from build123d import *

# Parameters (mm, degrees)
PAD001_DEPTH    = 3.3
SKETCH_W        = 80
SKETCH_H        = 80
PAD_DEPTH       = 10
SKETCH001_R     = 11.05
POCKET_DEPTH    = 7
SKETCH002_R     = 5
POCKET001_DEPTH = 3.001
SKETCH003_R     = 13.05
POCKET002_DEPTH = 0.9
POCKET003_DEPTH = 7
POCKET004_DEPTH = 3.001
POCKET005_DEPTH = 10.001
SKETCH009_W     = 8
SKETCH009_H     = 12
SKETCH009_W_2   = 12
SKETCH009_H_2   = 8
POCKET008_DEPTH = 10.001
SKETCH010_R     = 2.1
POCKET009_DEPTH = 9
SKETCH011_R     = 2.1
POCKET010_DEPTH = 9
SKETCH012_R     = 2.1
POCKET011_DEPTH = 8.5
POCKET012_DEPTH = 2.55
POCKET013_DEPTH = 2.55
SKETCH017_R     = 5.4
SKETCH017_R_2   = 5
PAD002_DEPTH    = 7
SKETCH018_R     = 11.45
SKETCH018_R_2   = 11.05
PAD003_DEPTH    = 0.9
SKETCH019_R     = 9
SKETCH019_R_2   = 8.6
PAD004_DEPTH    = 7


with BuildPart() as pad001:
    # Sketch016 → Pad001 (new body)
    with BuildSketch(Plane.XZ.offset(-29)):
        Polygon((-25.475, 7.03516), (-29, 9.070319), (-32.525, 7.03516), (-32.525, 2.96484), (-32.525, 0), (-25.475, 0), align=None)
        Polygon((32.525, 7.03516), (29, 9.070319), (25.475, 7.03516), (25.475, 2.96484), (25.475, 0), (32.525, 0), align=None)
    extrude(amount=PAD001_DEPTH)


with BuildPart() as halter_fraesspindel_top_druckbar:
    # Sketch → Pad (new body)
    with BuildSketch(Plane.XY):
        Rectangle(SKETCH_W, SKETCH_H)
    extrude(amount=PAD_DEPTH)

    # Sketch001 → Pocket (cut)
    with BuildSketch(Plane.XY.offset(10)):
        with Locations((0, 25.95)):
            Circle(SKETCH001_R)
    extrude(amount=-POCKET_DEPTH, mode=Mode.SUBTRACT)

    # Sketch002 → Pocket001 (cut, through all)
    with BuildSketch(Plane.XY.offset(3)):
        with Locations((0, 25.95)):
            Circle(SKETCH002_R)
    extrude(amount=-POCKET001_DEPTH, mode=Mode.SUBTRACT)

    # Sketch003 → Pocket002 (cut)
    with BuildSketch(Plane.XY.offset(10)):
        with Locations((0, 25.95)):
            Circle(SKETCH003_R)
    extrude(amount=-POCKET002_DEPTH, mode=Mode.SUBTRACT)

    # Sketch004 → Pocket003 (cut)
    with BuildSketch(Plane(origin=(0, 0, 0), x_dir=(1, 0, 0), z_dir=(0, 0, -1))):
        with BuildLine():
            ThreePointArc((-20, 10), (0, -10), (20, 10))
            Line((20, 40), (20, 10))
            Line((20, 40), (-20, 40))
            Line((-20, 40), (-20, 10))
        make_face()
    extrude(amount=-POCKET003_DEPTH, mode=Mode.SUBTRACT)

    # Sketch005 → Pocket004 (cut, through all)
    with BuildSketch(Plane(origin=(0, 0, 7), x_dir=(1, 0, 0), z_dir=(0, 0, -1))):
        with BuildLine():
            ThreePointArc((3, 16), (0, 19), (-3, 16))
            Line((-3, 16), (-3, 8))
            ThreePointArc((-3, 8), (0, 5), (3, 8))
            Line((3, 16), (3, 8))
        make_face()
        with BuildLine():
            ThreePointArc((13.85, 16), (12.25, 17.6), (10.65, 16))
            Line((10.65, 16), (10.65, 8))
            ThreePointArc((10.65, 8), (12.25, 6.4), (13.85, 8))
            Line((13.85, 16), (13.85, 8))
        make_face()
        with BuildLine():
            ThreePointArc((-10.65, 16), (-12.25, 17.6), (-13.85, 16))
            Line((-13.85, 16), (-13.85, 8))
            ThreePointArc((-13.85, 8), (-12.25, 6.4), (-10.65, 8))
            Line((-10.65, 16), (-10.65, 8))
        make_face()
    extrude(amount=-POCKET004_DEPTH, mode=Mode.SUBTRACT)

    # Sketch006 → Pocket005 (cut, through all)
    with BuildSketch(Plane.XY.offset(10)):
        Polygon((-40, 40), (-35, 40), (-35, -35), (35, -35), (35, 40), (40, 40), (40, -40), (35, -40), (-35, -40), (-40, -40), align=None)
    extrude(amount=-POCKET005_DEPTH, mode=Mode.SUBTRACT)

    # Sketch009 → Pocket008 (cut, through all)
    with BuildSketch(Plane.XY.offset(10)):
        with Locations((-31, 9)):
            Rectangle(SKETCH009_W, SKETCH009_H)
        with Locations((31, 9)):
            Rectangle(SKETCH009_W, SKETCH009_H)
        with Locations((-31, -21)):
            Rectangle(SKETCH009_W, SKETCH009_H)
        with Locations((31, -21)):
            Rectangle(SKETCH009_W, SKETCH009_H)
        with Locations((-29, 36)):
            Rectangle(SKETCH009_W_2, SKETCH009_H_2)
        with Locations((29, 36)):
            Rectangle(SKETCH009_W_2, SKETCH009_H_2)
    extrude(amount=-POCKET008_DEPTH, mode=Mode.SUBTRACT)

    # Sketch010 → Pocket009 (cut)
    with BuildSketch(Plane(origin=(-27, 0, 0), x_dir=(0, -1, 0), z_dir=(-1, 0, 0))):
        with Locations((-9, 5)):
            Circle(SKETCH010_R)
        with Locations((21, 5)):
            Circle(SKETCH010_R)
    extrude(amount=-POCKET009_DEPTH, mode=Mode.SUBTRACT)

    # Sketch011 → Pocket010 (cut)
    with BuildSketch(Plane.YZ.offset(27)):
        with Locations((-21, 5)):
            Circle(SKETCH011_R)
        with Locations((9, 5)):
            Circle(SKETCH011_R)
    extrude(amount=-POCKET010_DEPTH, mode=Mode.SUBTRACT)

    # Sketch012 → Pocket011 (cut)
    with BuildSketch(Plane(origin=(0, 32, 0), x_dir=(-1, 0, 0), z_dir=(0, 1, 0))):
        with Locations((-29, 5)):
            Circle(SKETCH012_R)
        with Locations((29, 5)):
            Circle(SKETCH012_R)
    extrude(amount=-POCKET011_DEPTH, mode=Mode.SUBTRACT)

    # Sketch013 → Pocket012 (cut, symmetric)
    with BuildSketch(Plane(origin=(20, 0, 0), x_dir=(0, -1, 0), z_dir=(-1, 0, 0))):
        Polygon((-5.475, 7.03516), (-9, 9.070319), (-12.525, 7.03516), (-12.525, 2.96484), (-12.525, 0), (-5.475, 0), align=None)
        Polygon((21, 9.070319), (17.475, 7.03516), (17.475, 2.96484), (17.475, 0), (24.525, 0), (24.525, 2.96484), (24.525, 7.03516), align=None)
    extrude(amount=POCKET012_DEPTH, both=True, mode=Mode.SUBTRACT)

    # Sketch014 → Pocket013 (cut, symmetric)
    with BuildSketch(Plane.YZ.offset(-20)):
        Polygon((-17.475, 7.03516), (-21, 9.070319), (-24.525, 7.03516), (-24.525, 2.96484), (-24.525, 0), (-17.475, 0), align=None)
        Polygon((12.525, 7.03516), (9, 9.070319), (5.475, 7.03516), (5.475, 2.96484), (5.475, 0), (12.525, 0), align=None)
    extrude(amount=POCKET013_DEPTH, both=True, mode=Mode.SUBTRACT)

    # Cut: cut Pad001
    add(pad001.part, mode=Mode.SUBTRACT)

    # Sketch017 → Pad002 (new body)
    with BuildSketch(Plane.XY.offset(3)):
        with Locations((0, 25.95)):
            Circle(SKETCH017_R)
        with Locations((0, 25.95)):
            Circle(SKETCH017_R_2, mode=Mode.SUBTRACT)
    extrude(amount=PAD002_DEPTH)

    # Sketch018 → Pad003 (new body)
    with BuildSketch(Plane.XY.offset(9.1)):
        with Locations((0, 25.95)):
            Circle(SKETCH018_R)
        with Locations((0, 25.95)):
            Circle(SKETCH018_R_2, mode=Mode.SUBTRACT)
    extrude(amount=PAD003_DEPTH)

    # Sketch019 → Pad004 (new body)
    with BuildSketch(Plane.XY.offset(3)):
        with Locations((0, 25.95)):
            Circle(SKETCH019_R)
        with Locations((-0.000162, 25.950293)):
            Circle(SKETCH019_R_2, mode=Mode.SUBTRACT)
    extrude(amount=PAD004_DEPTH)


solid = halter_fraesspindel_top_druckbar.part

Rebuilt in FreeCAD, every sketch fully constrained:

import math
import FreeCAD as App
import Part
import Sketcher
from FreeCAD import Vector
Q = App.Units.Quantity


def add_polygon(sketch, points):
    """Adds a closed chain of lines whose ends are joined by coincident constraints."""
    first, n = sketch.GeometryCount, len(points)
    for a, b in zip(points, points[1:] + points[:1]):
        sketch.addGeometry(Part.LineSegment(App.Vector(*a, 0), App.Vector(*b, 0)), False)
    for i in range(n):
        sketch.addConstraint(Sketcher.Constraint("Coincident", first + i, 2, first + (i + 1) % n, 1))

doc = App.newDocument("Part")
body = doc.addObject("PartDesign::Body", "Body")
body.AllowCompound = True

sketch1 = doc.addObject("Sketcher::SketchObject", "Sketch")
body.addObject(sketch1)
sketch1.AttachmentSupport = (doc.XZ_Plane, [""])
sketch1.MapMode = "FlatFace"
sketch1.AttachmentOffset = App.Placement(Vector(0, 0, -29), App.Rotation())
add_polygon(sketch1, [(-25.5, 7), (-29, 9.1), (-32.5, 7), (-32.5, 0), (-25.5, 0)])
add_polygon(sketch1, [(32.5, 7), (29, 9.1), (25.5, 7), (25.5, 0), (32.5, 0)])
sketch1.addConstraint([
    Sketcher.Constraint("Vertical", 2),
    Sketcher.Constraint("Horizontal", 3),
    Sketcher.Constraint("Vertical", 4),
    Sketcher.Constraint("Vertical", 7),
    Sketcher.Constraint("Horizontal", 8),
    Sketcher.Constraint("Vertical", 9),
    Sketcher.Constraint("Symmetric", 3, 2, 7, 2, -1, 1),
    Sketcher.Constraint("Symmetric", 0, 2, 5, 2, -2),
    Sketcher.Constraint("Symmetric", 2, 2, 8, 2, -2),
    Sketcher.Constraint("Parallel", 0, 5),
    Sketcher.Constraint("Parallel", 1, 6),
    Sketcher.Constraint("Horizontal", 1, 2, 4, 2),
    Sketcher.Constraint("Horizontal", 4, 2, 6, 2),
    Sketcher.Constraint("Angle", 0, Q("150.000009 deg")),
    Sketcher.Constraint("DistanceX", 0, 2, -1, 1, Q("29 mm")),
    Sketcher.Constraint("DistanceX", 3, 1, 3, 2, Q("7.05 mm")),
    Sketcher.Constraint("DistanceY", 2, 2, 2, 1, Q("7.03516 mm")),
])
pad1 = doc.addObject("PartDesign::Pad", "Pad")
body.addObject(pad1)
pad1.Profile = sketch1
pad1.Length = 3.3
body2 = doc.addObject("PartDesign::Body", "Body001")

sketch2 = doc.addObject("Sketcher::SketchObject", "Sketch001")
body2.addObject(sketch2)
sketch2.AttachmentSupport = (doc.getObject("XY_Plane001"), [""])
sketch2.MapMode = "FlatFace"
add_polygon(sketch2, [(-40, 40), (-40, -40), (40, -40), (40, 40)])
sketch2.addConstraint([
    Sketcher.Constraint("Vertical", 0),
    Sketcher.Constraint("Horizontal", 1),
    Sketcher.Constraint("Vertical", 2),
    Sketcher.Constraint("Horizontal", 3),
    Sketcher.Constraint("Symmetric", 0, 2, 2, 2, -1, 1),
    Sketcher.Constraint("Equal", 3, 0),
    Sketcher.Constraint("DistanceX", 1, 1, 1, 2, Q("80 mm")),
])
pad2 = doc.addObject("PartDesign::Pad", "Pad001")
body2.addObject(pad2)
pad2.Profile = sketch2
pad2.Length = 10

sketch3 = doc.addObject("Sketcher::SketchObject", "Sketch002")
body2.addObject(sketch3)
sketch3.AttachmentSupport = (doc.getObject("XY_Plane001"), [""])
sketch3.MapMode = "FlatFace"
sketch3.AttachmentOffset = App.Placement(Vector(0, 0, 10), App.Rotation())
sketch3.addGeometry(Part.Circle(Vector(0, 26, 0), Vector(0, 0, 1), 11), False)
sketch3.addConstraint([
    Sketcher.Constraint("PointOnObject", 0, 3, -2),
    Sketcher.Constraint("Diameter", 0, Q("22.1 mm")),
    Sketcher.Constraint("DistanceY", -1, 1, 0, 3, Q("25.95 mm")),
])
pocket1 = doc.addObject("PartDesign::Pocket", "Pocket")
body2.addObject(pocket1)
pocket1.Profile = sketch3
pocket1.Length = 7

sketch4 = doc.addObject("Sketcher::SketchObject", "Sketch003")
body2.addObject(sketch4)
sketch4.AttachmentSupport = (doc.getObject("XY_Plane001"), [""])
sketch4.MapMode = "FlatFace"
sketch4.AttachmentOffset = App.Placement(Vector(0, 0, 3), App.Rotation())
sketch4.addGeometry(Part.Circle(Vector(0, 26, 0), Vector(0, 0, 1), 5), False)
sketch4.addConstraint([
    Sketcher.Constraint("PointOnObject", 0, 3, -2),
    Sketcher.Constraint("Diameter", 0, Q("10 mm")),
    Sketcher.Constraint("DistanceY", -1, 1, 0, 3, Q("25.95 mm")),
])
pocket2 = doc.addObject("PartDesign::Pocket", "Pocket001")
body2.addObject(pocket2)
pocket2.Profile = sketch4
pocket2.Type = "ThroughAll"

sketch5 = doc.addObject("Sketcher::SketchObject", "Sketch004")
body2.addObject(sketch5)
sketch5.AttachmentSupport = (doc.getObject("XY_Plane001"), [""])
sketch5.MapMode = "FlatFace"
sketch5.AttachmentOffset = App.Placement(Vector(0, 0, 10), App.Rotation())
sketch5.addGeometry(Part.Circle(Vector(0, 26, 0), Vector(0, 0, 1), 13), False)
sketch5.addConstraint([
    Sketcher.Constraint("PointOnObject", 0, 3, -2),
    Sketcher.Constraint("Diameter", 0, Q("26.1 mm")),
    Sketcher.Constraint("DistanceY", -1, 1, 0, 3, Q("25.95 mm")),
])
pocket3 = doc.addObject("PartDesign::Pocket", "Pocket002")
body2.addObject(pocket3)
pocket3.Profile = sketch5
pocket3.Length = 0.9

sketch6 = doc.addObject("Sketcher::SketchObject", "Sketch005")
body2.addObject(sketch6)
sketch6.AttachmentSupport = (doc.getObject("XY_Plane001"), [""])
sketch6.MapMode = "FlatFace"
sketch6.addGeometry([
    Part.ArcOfCircle(Part.Circle(Vector(0, -10, 0), Vector(0, 0, 1), 20), math.radians(0), math.radians(180)),
    Part.LineSegment(Vector(20, -10, 0), Vector(20, -40, 0)),
    Part.LineSegment(Vector(20, -40, 0), Vector(-20, -40, 0)),
    Part.LineSegment(Vector(-20, -40, 0), Vector(-20, -10, 0)),
], False)
sketch6.addConstraint([
    Sketcher.Constraint("Tangent", 0, 1, 1, 1),
    Sketcher.Constraint("Coincident", 1, 2, 2, 1),
    Sketcher.Constraint("Coincident", 2, 2, 3, 1),
    Sketcher.Constraint("Tangent", 3, 2, 0, 2),
    Sketcher.Constraint("Vertical", 1),
    Sketcher.Constraint("Horizontal", 2),
    Sketcher.Constraint("Vertical", 3),
    Sketcher.Constraint("PointOnObject", 0, 3, -2),
    Sketcher.Constraint("Radius", 0, Q("20 mm")),
    Sketcher.Constraint("DistanceY", 1, 2, 1, 1, Q("30 mm")),
    Sketcher.Constraint("DistanceY", 0, 3, -1, 1, Q("10 mm")),
])
pocket4 = doc.addObject("PartDesign::Pocket", "Pocket003")
body2.addObject(pocket4)
pocket4.Profile = sketch6
pocket4.Length = 7
pocket4.Reversed = True

sketch7 = doc.addObject("Sketcher::SketchObject", "Sketch006")
body2.addObject(sketch7)
sketch7.AttachmentSupport = (doc.getObject("XY_Plane001"), [""])
sketch7.MapMode = "FlatFace"
sketch7.AttachmentOffset = App.Placement(Vector(0, 0, 7), App.Rotation())
sketch7.addGeometry([
    Part.ArcOfCircle(Part.Circle(Vector(0, -16, 0), Vector(0, 0, 1), 3), math.radians(180), math.radians(360)),
    Part.LineSegment(Vector(-3, -16, 0), Vector(-3, -8, 0)),
    Part.ArcOfCircle(Part.Circle(Vector(0, -8, 0), Vector(0, 0, 1), 3), math.radians(0), math.radians(180)),
    Part.LineSegment(Vector(3, -8, 0), Vector(3, -16, 0)),
    Part.ArcOfCircle(Part.Circle(Vector(12.2, -16, 0), Vector(0, 0, 1), 1.6), math.radians(180), math.radians(360)),
    Part.LineSegment(Vector(10.7, -16, 0), Vector(10.7, -8, 0)),
    Part.ArcOfCircle(Part.Circle(Vector(12.2, -8, 0), Vector(0, 0, 1), 1.6), math.radians(0), math.radians(180)),
    Part.LineSegment(Vector(13.8, -8, 0), Vector(13.8, -16, 0)),
    Part.ArcOfCircle(Part.Circle(Vector(-12.2, -16, 0), Vector(0, 0, 1), 1.6), math.radians(180), math.radians(360)),
    Part.LineSegment(Vector(-13.8, -16, 0), Vector(-13.8, -8, 0)),
    Part.ArcOfCircle(Part.Circle(Vector(-12.2, -8, 0), Vector(0, 0, 1), 1.6), math.radians(0), math.radians(180)),
    Part.LineSegment(Vector(-10.7, -8, 0), Vector(-10.7, -16, 0)),
], False)
sketch7.addConstraint([
    Sketcher.Constraint("Tangent", 0, 1, 1, 1),
    Sketcher.Constraint("Tangent", 1, 2, 2, 2),
    Sketcher.Constraint("Tangent", 2, 1, 3, 1),
    Sketcher.Constraint("Tangent", 3, 2, 0, 2),
    Sketcher.Constraint("Tangent", 4, 1, 5, 1),
    Sketcher.Constraint("Tangent", 5, 2, 6, 2),
    Sketcher.Constraint("Tangent", 6, 1, 7, 1),
    Sketcher.Constraint("Tangent", 7, 2, 4, 2),
    Sketcher.Constraint("Tangent", 8, 1, 9, 1),
    Sketcher.Constraint("Tangent", 9, 2, 10, 2),
    Sketcher.Constraint("Tangent", 10, 1, 11, 1),
    Sketcher.Constraint("Tangent", 11, 2, 8, 2),
    Sketcher.Constraint("Vertical", 1),
    Sketcher.Constraint("Vertical", 3),
    Sketcher.Constraint("Vertical", 5),
    Sketcher.Constraint("Vertical", 7),
    Sketcher.Constraint("Vertical", 9),
    Sketcher.Constraint("Vertical", 11),
    Sketcher.Constraint("Equal", 6, 8),
    Sketcher.Constraint("Symmetric", 4, 3, 8, 3, -2),
    Sketcher.Constraint("PointOnObject", 0, 3, -2),
    Sketcher.Constraint("Horizontal", 0, 3, 4, 3),
    Sketcher.Constraint("Horizontal", 2, 3, 6, 3),
    Sketcher.Constraint("Horizontal", 6, 3, 10, 3),
    Sketcher.Constraint("Radius", 0, Q("3 mm")),
    Sketcher.Constraint("Radius", 4, Q("1.6 mm")),
    Sketcher.Constraint("DistanceY", 1, 1, 1, 2, Q("8 mm")),
    Sketcher.Constraint("DistanceY", 0, 3, -1, 1, Q("16 mm")),
    Sketcher.Constraint("DistanceX", 8, 3, 4, 3, Q("24.5 mm")),
])
pocket5 = doc.addObject("PartDesign::Pocket", "Pocket004")
body2.addObject(pocket5)
pocket5.Profile = sketch7
pocket5.Type = "ThroughAll"
pocket5.Reversed = True

sketch8 = doc.addObject("Sketcher::SketchObject", "Sketch007")
body2.addObject(sketch8)
sketch8.AttachmentSupport = (doc.getObject("XY_Plane001"), [""])
sketch8.MapMode = "FlatFace"
sketch8.AttachmentOffset = App.Placement(Vector(0, 0, 10), App.Rotation())
add_polygon(sketch8, [(-35, 40), (-40, 40), (-40, -40), (40, -40), (40, 40), (35, 40), (35, -35), (-35, -35)])
sketch8.addConstraint([
    Sketcher.Constraint("Horizontal", 0),
    Sketcher.Constraint("Vertical", 1),
    Sketcher.Constraint("Horizontal", 2),
    Sketcher.Constraint("Vertical", 3),
    Sketcher.Constraint("Horizontal", 4),
    Sketcher.Constraint("Vertical", 5),
    Sketcher.Constraint("Horizontal", 6),
    Sketcher.Constraint("Vertical", 7),
    Sketcher.Constraint("Symmetric", 0, 2, 2, 2, -1, 1),
    Sketcher.Constraint("Symmetric", 4, 2, 7, 2, -2),
    Sketcher.Constraint("Equal", 2, 1),
    Sketcher.Constraint("DistanceX", 0, 2, 0, 1, Q("5 mm")),
    Sketcher.Constraint("DistanceX", 2, 1, 2, 2, Q("80 mm")),
    Sketcher.Constraint("DistanceY", 5, 2, 5, 1, Q("75 mm")),
])
pocket6 = doc.addObject("PartDesign::Pocket", "Pocket005")
body2.addObject(pocket6)
pocket6.Profile = sketch8
pocket6.Type = "ThroughAll"

sketch9 = doc.addObject("Sketcher::SketchObject", "Sketch008")
body2.addObject(sketch9)
sketch9.AttachmentSupport = (doc.getObject("XY_Plane001"), [""])
sketch9.MapMode = "FlatFace"
sketch9.AttachmentOffset = App.Placement(Vector(0, 0, 10), App.Rotation())
add_polygon(sketch9, [(-35, 15), (-35, 3), (-27, 3), (-27, 15)])
add_polygon(sketch9, [(27, 15), (27, 3), (35, 3), (35, 15)])
add_polygon(sketch9, [(-35, -15), (-35, -27), (-27, -27), (-27, -15)])
add_polygon(sketch9, [(27, -15), (27, -27), (35, -27), (35, -15)])
add_polygon(sketch9, [(-35, 40), (-35, 32), (-23, 32), (-23, 40)])
add_polygon(sketch9, [(23, 40), (23, 32), (35, 32), (35, 40)])
sketch9.addConstraint([
    Sketcher.Constraint("Vertical", 0),
    Sketcher.Constraint("Horizontal", 1),
    Sketcher.Constraint("Vertical", 2),
    Sketcher.Constraint("Horizontal", 3),
    Sketcher.Constraint("Vertical", 4),
    Sketcher.Constraint("Horizontal", 5),
    Sketcher.Constraint("Vertical", 6),
    Sketcher.Constraint("Horizontal", 7),
    Sketcher.Constraint("Vertical", 8),
    Sketcher.Constraint("Horizontal", 9),
    Sketcher.Constraint("Vertical", 10),
    Sketcher.Constraint("Horizontal", 11),
    Sketcher.Constraint("Vertical", 12),
    Sketcher.Constraint("Horizontal", 13),
    Sketcher.Constraint("Vertical", 14),
    Sketcher.Constraint("Horizontal", 15),
    Sketcher.Constraint("Vertical", 16),
    Sketcher.Constraint("Horizontal", 17),
    Sketcher.Constraint("Vertical", 18),
    Sketcher.Constraint("Horizontal", 19),
    Sketcher.Constraint("Vertical", 20),
    Sketcher.Constraint("Horizontal", 21),
    Sketcher.Constraint("Vertical", 22),
    Sketcher.Constraint("Horizontal", 23),
    Sketcher.Constraint("Symmetric", 7, 2, 10, 2, -1, 1),
    Sketcher.Constraint("Symmetric", 3, 2, 14, 2, -1, 1),
    Sketcher.Constraint("Symmetric", 1, 2, 4, 2, -2),
    Sketcher.Constraint("Symmetric", 3, 2, 6, 2, -2),
    Sketcher.Constraint("Symmetric", 9, 2, 12, 2, -2),
    Sketcher.Constraint("Symmetric", 17, 2, 20, 2, -2),
    Sketcher.Constraint("Symmetric", 19, 2, 22, 2, -2),
    Sketcher.Constraint("Vertical", 3, 2, 8, 2),
    Sketcher.Constraint("Vertical", 11, 2, 16, 2),
    Sketcher.Constraint("Equal", 23, 0),
    Sketcher.Constraint("Equal", 6, 8),
    Sketcher.Constraint("Equal", 15, 16),
    Sketcher.Constraint("DistanceX", 1, 1, 1, 2, Q("8 mm")),
    Sketcher.Constraint("DistanceX", 17, 1, 17, 2, Q("12 mm")),
    Sketcher.Constraint("DistanceX", 0, 2, -1, 1, Q("35 mm")),
    Sketcher.Constraint("DistanceY", -1, 1, 0, 2, Q("3 mm")),
    Sketcher.Constraint("DistanceY", -1, 1, 16, 2, Q("32 mm")),
])
pocket7 = doc.addObject("PartDesign::Pocket", "Pocket006")
body2.addObject(pocket7)
pocket7.Profile = sketch9
pocket7.Type = "ThroughAll"

sketch10 = doc.addObject("Sketcher::SketchObject", "Sketch009")
body2.addObject(sketch10)
sketch10.AttachmentSupport = (doc.getObject("YZ_Plane001"), [""])
sketch10.MapMode = "FlatFace"
sketch10.AttachmentOffset = App.Placement(Vector(0, 0, -27), App.Rotation())
sketch10.addGeometry([
    Part.Circle(Vector(9, 5, 0), Vector(0, 0, 1), 2.1),
    Part.Circle(Vector(-21, 5, 0), Vector(0, 0, 1), 2.1),
], False)
sketch10.addConstraint([
    Sketcher.Constraint("Equal", 0, 1),
    Sketcher.Constraint("Horizontal", 0, 3, 1, 3),
    Sketcher.Constraint("Diameter", 0, Q("4.2 mm")),
    Sketcher.Constraint("DistanceX", -1, 1, 0, 3, Q("9 mm")),
    Sketcher.Constraint("DistanceY", -1, 1, 0, 3, Q("5 mm")),
    Sketcher.Constraint("DistanceX", 1, 3, -1, 1, Q("21 mm")),
])
pocket8 = doc.addObject("PartDesign::Pocket", "Pocket007")
body2.addObject(pocket8)
pocket8.Profile = sketch10
pocket8.Length = 9
pocket8.Reversed = True

sketch11 = doc.addObject("Sketcher::SketchObject", "Sketch010")
body2.addObject(sketch11)
sketch11.AttachmentSupport = (doc.getObject("YZ_Plane001"), [""])
sketch11.MapMode = "FlatFace"
sketch11.AttachmentOffset = App.Placement(Vector(0, 0, 27), App.Rotation())
sketch11.addGeometry([
    Part.Circle(Vector(-21, 5, 0), Vector(0, 0, 1), 2.1),
    Part.Circle(Vector(9, 5, 0), Vector(0, 0, 1), 2.1),
], False)
sketch11.addConstraint([
    Sketcher.Constraint("Equal", 0, 1),
    Sketcher.Constraint("Horizontal", 0, 3, 1, 3),
    Sketcher.Constraint("Diameter", 0, Q("4.2 mm")),
    Sketcher.Constraint("DistanceX", 0, 3, -1, 1, Q("21 mm")),
    Sketcher.Constraint("DistanceY", -1, 1, 0, 3, Q("5 mm")),
    Sketcher.Constraint("DistanceX", -1, 1, 1, 3, Q("9 mm")),
])
pocket9 = doc.addObject("PartDesign::Pocket", "Pocket008")
body2.addObject(pocket9)
pocket9.Profile = sketch11
pocket9.Length = 9

sketch12 = doc.addObject("Sketcher::SketchObject", "Sketch011")
body2.addObject(sketch12)
sketch12.AttachmentSupport = (doc.getObject("XZ_Plane001"), [""])
sketch12.MapMode = "FlatFace"
sketch12.AttachmentOffset = App.Placement(Vector(0, 0, -32), App.Rotation())
sketch12.addGeometry([
    Part.Circle(Vector(29, 5, 0), Vector(0, 0, 1), 2.1),
    Part.Circle(Vector(-29, 5, 0), Vector(0, 0, 1), 2.1),
], False)
sketch12.addConstraint([
    Sketcher.Constraint("Equal", 0, 1),
    Sketcher.Constraint("Symmetric", 0, 3, 1, 3, -2),
    Sketcher.Constraint("Diameter", 0, Q("4.2 mm")),
    Sketcher.Constraint("DistanceX", -1, 1, 0, 3, Q("29 mm")),
    Sketcher.Constraint("DistanceY", -1, 1, 0, 3, Q("5 mm")),
])
pocket10 = doc.addObject("PartDesign::Pocket", "Pocket009")
body2.addObject(pocket10)
pocket10.Profile = sketch12
pocket10.Length = 8.5
pocket10.Reversed = True

sketch13 = doc.addObject("Sketcher::SketchObject", "Sketch012")
body2.addObject(sketch13)
sketch13.AttachmentSupport = (doc.getObject("YZ_Plane001"), [""])
sketch13.MapMode = "FlatFace"
sketch13.AttachmentOffset = App.Placement(Vector(0, 0, 20), App.Rotation())
add_polygon(sketch13, [(5.5, 7), (9, 9.1), (12.5, 7), (12.5, 0), (5.5, 0)])
add_polygon(sketch13, [(-21, 9.1), (-17.5, 7), (-17.5, 0), (-24.5, 0), (-24.5, 7)])
sketch13.addConstraint([
    Sketcher.Constraint("Vertical", 2),
    Sketcher.Constraint("Horizontal", 3),
    Sketcher.Constraint("Vertical", 4),
    Sketcher.Constraint("Vertical", 6),
    Sketcher.Constraint("Horizontal", 7),
    Sketcher.Constraint("Vertical", 8),
    Sketcher.Constraint("PointOnObject", 2, 2, -1),
    Sketcher.Constraint("PointOnObject", 6, 2, -1),
    Sketcher.Constraint("Parallel", 1, 5),
    Sketcher.Constraint("Parallel", 0, 9),
    Sketcher.Constraint("Horizontal", 1, 2, 4, 2),
    Sketcher.Constraint("Horizontal", 4, 2, 5, 2),
    Sketcher.Constraint("Horizontal", 5, 2, 8, 2),
    Sketcher.Constraint("Horizontal", 0, 2, 9, 2),
    Sketcher.Constraint("Equal", 0, 1),
    Sketcher.Constraint("Angle", 0, Q("29.999991 deg")),
    Sketcher.Constraint("DistanceX", -1, 1, 0, 2, Q("9 mm")),
    Sketcher.Constraint("DistanceX", 9, 2, -1, 1, Q("21 mm")),
    Sketcher.Constraint("DistanceX", 3, 2, 3, 1, Q("7.05 mm")),
    Sketcher.Constraint("DistanceY", 2, 2, 2, 1, Q("7.03516 mm")),
])
pocket11 = doc.addObject("PartDesign::Pocket", "Pocket010")
body2.addObject(pocket11)
pocket11.Profile = sketch13
pocket11.Length = 5.1
pocket11.Midplane = True

sketch14 = doc.addObject("Sketcher::SketchObject", "Sketch013")
body2.addObject(sketch14)
sketch14.AttachmentSupport = (doc.getObject("YZ_Plane001"), [""])
sketch14.MapMode = "FlatFace"
sketch14.AttachmentOffset = App.Placement(Vector(0, 0, -20), App.Rotation())
add_polygon(sketch14, [(-17.5, 7), (-21, 9.1), (-24.5, 7), (-24.5, 0), (-17.5, 0)])
add_polygon(sketch14, [(12.5, 7), (9, 9.1), (5.5, 7), (5.5, 0), (12.5, 0)])
sketch14.addConstraint([
    Sketcher.Constraint("Vertical", 2),
    Sketcher.Constraint("Horizontal", 3),
    Sketcher.Constraint("Vertical", 4),
    Sketcher.Constraint("Vertical", 7),
    Sketcher.Constraint("Horizontal", 8),
    Sketcher.Constraint("Vertical", 9),
    Sketcher.Constraint("PointOnObject", 2, 2, -1),
    Sketcher.Constraint("PointOnObject", 7, 2, -1),
    Sketcher.Constraint("Parallel", 0, 5),
    Sketcher.Constraint("Parallel", 1, 6),
    Sketcher.Constraint("Horizontal", 1, 2, 4, 2),
    Sketcher.Constraint("Horizontal", 0, 2, 5, 2),
    Sketcher.Constraint("Horizontal", 4, 2, 6, 2),
    Sketcher.Constraint("Horizontal", 6, 2, 9, 2),
    Sketcher.Constraint("Equal", 0, 1),
    Sketcher.Constraint("Angle", 0, Q("150.000009 deg")),
    Sketcher.Constraint("DistanceX", 0, 2, -1, 1, Q("21 mm")),
    Sketcher.Constraint("DistanceX", -1, 1, 5, 2, Q("9 mm")),
    Sketcher.Constraint("DistanceX", 3, 1, 3, 2, Q("7.05 mm")),
    Sketcher.Constraint("DistanceY", 2, 2, 2, 1, Q("7.03516 mm")),
])
pocket12 = doc.addObject("PartDesign::Pocket", "Pocket011")
body2.addObject(pocket12)
pocket12.Profile = sketch14
pocket12.Length = 5.1
pocket12.Midplane = True
doc.recompute()

boolean = doc.addObject("PartDesign::Boolean", "Boolean")
body2.addObject(boolean)
boolean.Type = "Cut"
boolean.addObjects([body])

sketch15 = doc.addObject("Sketcher::SketchObject", "Sketch014")
body2.addObject(sketch15)
sketch15.AttachmentSupport = (doc.getObject("XY_Plane001"), [""])
sketch15.MapMode = "FlatFace"
sketch15.AttachmentOffset = App.Placement(Vector(0, 0, 3), App.Rotation())
sketch15.addGeometry([
    Part.Circle(Vector(0, 26, 0), Vector(0, 0, 1), 5),
    Part.Circle(Vector(0, 26, 0), Vector(0, 0, 1), 5),
], False)
sketch15.addConstraint([
    Sketcher.Constraint("Coincident", 1, 3, 0, 3),
    Sketcher.Constraint("PointOnObject", 0, 3, -2),
    Sketcher.Constraint("Diameter", 1, Q("10 mm")),
    Sketcher.Constraint("Diameter", 0, Q("10.8 mm")),
    Sketcher.Constraint("DistanceY", -1, 1, 0, 3, Q("25.95 mm")),
])
pad3 = doc.addObject("PartDesign::Pad", "Pad002")
body2.addObject(pad3)
pad3.Profile = sketch15
pad3.Length = 7

sketch16 = doc.addObject("Sketcher::SketchObject", "Sketch015")
body2.addObject(sketch16)
sketch16.AttachmentSupport = (doc.getObject("XY_Plane001"), [""])
sketch16.MapMode = "FlatFace"
sketch16.AttachmentOffset = App.Placement(Vector(0, 0, 9.1), App.Rotation())
sketch16.addGeometry([
    Part.Circle(Vector(0, 26, 0), Vector(0, 0, 1), 11),
    Part.Circle(Vector(0, 26, 0), Vector(0, 0, 1), 11),
], False)
sketch16.addConstraint([
    Sketcher.Constraint("Coincident", 1, 3, 0, 3),
    Sketcher.Constraint("PointOnObject", 0, 3, -2),
    Sketcher.Constraint("Diameter", 0, Q("22.9 mm")),
    Sketcher.Constraint("Diameter", 1, Q("22.1 mm")),
    Sketcher.Constraint("DistanceY", -1, 1, 0, 3, Q("25.95 mm")),
])
pad4 = doc.addObject("PartDesign::Pad", "Pad003")
body2.addObject(pad4)
pad4.Profile = sketch16
pad4.Length = 0.9

sketch17 = doc.addObject("Sketcher::SketchObject", "Sketch016")
body2.addObject(sketch17)
sketch17.AttachmentSupport = (doc.getObject("XY_Plane001"), [""])
sketch17.MapMode = "FlatFace"
sketch17.AttachmentOffset = App.Placement(Vector(0, 0, 3), App.Rotation())
sketch17.addGeometry([
    Part.Circle(Vector(0, 26, 0), Vector(0, 0, 1), 9),
    Part.Circle(Vector(0, 26, 0), Vector(0, 0, 1), 9),
], False)
sketch17.addConstraint([
    Sketcher.Constraint("PointOnObject", 0, 3, -2),
    Sketcher.Constraint("Diameter", 0, Q("18 mm")),
    Sketcher.Constraint("Diameter", 1, Q("17.2 mm")),
    Sketcher.Constraint("DistanceY", -1, 1, 0, 3, Q("25.95 mm")),
    Sketcher.Constraint("DistanceX", 1, 3, -1, 1, Q("0.000162 mm")),
    Sketcher.Constraint("DistanceY", -1, 1, 1, 3, Q("25.950293 mm")),
])
pad5 = doc.addObject("PartDesign::Pad", "Pad004")
body2.addObject(pad5)
pad5.Profile = sketch17
pad5.Length = 7

doc.recompute()
